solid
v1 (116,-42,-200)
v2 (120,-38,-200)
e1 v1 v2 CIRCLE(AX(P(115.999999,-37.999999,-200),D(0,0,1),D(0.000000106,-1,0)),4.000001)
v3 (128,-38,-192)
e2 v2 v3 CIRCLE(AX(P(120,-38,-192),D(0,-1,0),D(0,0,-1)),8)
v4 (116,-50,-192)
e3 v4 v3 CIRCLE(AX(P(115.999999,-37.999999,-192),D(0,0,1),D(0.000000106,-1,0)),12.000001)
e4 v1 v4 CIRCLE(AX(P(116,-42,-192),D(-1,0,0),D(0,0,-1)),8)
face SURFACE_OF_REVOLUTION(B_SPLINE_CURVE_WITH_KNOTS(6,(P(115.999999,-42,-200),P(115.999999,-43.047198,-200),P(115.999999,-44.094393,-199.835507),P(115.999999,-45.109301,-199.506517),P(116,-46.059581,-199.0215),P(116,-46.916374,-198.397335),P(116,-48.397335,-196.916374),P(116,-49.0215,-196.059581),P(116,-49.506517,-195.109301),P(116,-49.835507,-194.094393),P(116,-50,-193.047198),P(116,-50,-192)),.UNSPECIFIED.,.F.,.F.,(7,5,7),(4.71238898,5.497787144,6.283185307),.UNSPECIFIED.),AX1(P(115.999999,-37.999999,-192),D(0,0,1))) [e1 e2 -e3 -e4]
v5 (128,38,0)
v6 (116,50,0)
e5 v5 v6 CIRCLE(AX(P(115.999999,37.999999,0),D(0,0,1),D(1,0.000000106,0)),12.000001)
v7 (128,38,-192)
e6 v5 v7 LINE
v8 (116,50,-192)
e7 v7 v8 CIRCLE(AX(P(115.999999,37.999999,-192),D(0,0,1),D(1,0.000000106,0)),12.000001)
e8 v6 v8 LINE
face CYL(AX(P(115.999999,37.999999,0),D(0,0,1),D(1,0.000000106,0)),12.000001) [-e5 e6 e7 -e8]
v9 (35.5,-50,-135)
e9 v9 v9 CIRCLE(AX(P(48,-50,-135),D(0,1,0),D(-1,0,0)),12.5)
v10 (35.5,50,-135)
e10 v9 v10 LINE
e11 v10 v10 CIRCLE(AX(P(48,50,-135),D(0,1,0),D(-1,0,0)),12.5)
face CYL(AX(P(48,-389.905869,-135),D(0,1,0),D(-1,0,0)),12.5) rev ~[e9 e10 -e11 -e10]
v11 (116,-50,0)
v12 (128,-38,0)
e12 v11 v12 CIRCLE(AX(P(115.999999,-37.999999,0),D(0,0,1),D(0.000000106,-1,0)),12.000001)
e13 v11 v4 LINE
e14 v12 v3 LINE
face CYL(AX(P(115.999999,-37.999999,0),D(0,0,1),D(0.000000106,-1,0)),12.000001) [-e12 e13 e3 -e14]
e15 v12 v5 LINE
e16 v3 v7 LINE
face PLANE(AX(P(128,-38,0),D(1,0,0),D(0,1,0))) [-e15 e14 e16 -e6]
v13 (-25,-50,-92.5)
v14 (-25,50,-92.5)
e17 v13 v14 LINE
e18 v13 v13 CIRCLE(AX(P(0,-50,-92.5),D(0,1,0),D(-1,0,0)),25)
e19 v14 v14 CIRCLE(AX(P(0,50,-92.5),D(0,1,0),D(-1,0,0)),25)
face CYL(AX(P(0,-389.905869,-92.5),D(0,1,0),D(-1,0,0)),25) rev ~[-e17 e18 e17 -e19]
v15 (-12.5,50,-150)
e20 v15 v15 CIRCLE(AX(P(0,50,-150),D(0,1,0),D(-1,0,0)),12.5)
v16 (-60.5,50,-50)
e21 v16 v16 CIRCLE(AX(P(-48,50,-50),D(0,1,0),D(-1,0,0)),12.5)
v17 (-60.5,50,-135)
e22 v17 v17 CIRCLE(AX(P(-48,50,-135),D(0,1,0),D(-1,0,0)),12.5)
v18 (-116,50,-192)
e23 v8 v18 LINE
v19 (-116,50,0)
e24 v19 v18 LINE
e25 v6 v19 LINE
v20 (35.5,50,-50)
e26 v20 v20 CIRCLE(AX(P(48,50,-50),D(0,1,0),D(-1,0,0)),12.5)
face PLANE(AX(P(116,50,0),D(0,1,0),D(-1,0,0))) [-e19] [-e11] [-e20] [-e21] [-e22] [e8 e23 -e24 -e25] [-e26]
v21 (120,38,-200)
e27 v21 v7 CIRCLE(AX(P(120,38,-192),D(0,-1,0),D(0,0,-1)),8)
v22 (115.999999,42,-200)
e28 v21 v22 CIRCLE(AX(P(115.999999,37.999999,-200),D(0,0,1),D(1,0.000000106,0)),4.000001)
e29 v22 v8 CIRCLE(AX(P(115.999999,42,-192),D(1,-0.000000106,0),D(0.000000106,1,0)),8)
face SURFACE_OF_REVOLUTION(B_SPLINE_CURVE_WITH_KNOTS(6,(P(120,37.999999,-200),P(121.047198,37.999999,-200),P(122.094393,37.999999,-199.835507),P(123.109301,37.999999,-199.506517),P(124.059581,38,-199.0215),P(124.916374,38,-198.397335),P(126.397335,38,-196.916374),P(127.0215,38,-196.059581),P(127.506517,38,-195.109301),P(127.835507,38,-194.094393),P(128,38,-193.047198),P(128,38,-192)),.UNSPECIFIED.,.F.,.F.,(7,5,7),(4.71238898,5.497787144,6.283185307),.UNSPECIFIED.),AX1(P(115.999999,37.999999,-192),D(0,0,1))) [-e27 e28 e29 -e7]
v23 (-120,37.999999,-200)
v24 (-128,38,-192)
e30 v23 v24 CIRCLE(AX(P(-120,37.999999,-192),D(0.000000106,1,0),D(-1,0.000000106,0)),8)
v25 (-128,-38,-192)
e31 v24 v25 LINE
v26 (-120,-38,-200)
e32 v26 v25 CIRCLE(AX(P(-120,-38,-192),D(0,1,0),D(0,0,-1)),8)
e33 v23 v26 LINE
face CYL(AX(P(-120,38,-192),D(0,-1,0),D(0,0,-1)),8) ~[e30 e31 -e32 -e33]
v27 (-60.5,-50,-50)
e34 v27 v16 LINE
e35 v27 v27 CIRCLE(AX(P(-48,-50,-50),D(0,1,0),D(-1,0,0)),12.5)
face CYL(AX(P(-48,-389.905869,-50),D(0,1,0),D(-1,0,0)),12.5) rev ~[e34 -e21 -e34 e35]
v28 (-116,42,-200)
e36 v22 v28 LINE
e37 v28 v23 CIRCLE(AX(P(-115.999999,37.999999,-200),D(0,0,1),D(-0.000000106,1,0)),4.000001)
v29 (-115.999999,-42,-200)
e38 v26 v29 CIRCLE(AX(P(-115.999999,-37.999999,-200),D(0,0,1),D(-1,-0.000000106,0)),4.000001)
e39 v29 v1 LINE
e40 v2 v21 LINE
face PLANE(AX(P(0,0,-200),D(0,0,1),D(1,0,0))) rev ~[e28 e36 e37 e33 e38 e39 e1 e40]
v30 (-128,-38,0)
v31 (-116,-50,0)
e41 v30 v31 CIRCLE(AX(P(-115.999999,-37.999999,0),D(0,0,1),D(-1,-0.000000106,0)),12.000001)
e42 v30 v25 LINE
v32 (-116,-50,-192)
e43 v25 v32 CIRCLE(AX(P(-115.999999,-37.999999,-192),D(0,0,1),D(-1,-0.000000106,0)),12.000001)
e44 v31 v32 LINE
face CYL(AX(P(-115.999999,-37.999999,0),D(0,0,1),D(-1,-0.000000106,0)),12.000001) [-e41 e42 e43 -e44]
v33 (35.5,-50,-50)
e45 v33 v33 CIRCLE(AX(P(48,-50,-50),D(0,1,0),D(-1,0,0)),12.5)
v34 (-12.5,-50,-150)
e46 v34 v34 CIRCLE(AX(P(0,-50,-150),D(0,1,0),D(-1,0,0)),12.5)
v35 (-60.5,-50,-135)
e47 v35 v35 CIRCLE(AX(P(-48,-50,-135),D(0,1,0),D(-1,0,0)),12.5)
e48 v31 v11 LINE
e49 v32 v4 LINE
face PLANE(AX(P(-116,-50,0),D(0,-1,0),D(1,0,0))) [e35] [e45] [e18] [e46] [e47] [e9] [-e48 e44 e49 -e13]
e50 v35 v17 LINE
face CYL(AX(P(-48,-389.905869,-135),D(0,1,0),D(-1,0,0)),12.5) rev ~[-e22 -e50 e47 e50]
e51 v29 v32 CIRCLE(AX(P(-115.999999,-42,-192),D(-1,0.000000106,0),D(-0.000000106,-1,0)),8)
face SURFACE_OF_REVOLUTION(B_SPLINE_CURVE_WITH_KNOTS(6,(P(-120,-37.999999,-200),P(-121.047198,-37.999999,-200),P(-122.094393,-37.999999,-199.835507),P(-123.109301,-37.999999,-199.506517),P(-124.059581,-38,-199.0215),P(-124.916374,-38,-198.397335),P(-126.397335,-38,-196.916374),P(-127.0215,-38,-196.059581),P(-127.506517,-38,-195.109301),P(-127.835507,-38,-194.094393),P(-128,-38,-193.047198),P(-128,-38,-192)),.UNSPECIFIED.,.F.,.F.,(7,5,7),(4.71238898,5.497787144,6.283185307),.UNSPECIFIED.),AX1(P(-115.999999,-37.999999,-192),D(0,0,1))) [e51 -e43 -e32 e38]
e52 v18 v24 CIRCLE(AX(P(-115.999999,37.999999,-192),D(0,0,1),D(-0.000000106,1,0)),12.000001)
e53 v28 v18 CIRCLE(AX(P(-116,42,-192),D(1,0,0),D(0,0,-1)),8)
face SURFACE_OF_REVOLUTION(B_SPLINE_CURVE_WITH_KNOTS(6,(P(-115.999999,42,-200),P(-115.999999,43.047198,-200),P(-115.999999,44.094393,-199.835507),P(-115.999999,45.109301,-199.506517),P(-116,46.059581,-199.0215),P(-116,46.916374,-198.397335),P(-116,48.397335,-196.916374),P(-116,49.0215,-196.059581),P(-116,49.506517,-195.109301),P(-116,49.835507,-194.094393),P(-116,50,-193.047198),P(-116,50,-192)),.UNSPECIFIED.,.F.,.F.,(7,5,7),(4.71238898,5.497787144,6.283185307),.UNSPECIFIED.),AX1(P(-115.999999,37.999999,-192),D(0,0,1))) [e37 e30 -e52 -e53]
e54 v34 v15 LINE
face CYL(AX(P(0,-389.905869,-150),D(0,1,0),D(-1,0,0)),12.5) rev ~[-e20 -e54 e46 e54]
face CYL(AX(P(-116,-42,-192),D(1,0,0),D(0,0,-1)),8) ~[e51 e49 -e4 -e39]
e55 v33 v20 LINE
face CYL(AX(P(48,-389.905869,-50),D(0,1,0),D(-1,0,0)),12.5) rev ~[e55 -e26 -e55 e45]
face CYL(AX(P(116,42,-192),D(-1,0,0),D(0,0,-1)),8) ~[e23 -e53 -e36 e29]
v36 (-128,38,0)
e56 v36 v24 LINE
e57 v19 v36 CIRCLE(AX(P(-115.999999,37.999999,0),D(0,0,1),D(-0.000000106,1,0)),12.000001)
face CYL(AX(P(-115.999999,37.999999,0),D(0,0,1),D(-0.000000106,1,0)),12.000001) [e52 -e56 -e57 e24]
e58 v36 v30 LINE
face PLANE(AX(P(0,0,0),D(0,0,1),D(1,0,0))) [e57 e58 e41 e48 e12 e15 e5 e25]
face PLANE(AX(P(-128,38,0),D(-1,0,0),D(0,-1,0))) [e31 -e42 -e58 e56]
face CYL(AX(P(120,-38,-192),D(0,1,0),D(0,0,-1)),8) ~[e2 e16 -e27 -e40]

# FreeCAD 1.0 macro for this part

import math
import FreeCAD as App
import Part
import Sketcher

V = App.Vector
Q = App.Units.Quantity


def edges_at(feature, points):
    """Names of the edges that pass closest to the given points."""
    edges = feature.Shape.Edges
    near = lambda p: min(range(len(edges)), key=lambda i: edges[i].distToShape(Part.Vertex(*p))[0])
    return sorted({f"Edge{near(p) + 1}" for p in points})

doc = App.newDocument("Part")
body = doc.addObject("PartDesign::Body", "Body")

# Sketch on XY plane
sketch1 = body.newObject("Sketcher::SketchObject", "Sketch")
sketch1.AttachmentSupport = (doc.getObject("XY_Plane"), [""])
sketch1.MapMode = "FlatFace"
sketch1.addGeometry(Part.LineSegment(V(116, 50, 0), V(-116, 50, 0)), False)
sketch1.addGeometry(Part.ArcOfCircle(Part.Circle(V(-116, 38, 0), V(0, 0, 1), 12), math.radians(90), math.radians(180)), False)
sketch1.addGeometry(Part.LineSegment(V(-128, 38, 0), V(-128, -38, 0)), False)
sketch1.addGeometry(Part.ArcOfCircle(Part.Circle(V(-116, -38, 0), V(0, 0, 1), 12), math.radians(-180), math.radians(-90)), False)
sketch1.addGeometry(Part.LineSegment(V(-116, -50, 0), V(116, -50, 0)), False)
sketch1.addGeometry(Part.ArcOfCircle(Part.Circle(V(116, -38, 0), V(0, 0, 1), 12), math.radians(-90), math.radians(0)), False)
sketch1.addGeometry(Part.LineSegment(V(128, -38, 0), V(128, 38, 0)), False)
sketch1.addGeometry(Part.ArcOfCircle(Part.Circle(V(116, 38, 0), V(0, 0, 1), 12), math.radians(0), math.radians(90)), False)
sketch1.addConstraint(Sketcher.Constraint("Tangent", 0, 2, 1, 1))
sketch1.addConstraint(Sketcher.Constraint("Tangent", 1, 2, 2, 1))
sketch1.addConstraint(Sketcher.Constraint("Tangent", 2, 2, 3, 1))
sketch1.addConstraint(Sketcher.Constraint("Tangent", 3, 2, 4, 1))
sketch1.addConstraint(Sketcher.Constraint("Tangent", 4, 2, 5, 1))
sketch1.addConstraint(Sketcher.Constraint("Tangent", 5, 2, 6, 1))
sketch1.addConstraint(Sketcher.Constraint("Tangent", 6, 2, 7, 1))
sketch1.addConstraint(Sketcher.Constraint("Tangent", 7, 2, 0, 1))
sketch1.addConstraint(Sketcher.Constraint("Horizontal", 0))
sketch1.addConstraint(Sketcher.Constraint("Vertical", 2))
sketch1.addConstraint(Sketcher.Constraint("Horizontal", 4))
sketch1.addConstraint(Sketcher.Constraint("Vertical", 6))
sketch1.addConstraint(Sketcher.Constraint("Equal", 1, 3))
sketch1.addConstraint(Sketcher.Constraint("Equal", 3, 5))
sketch1.addConstraint(Sketcher.Constraint("Equal", 5, 7))
sketch1.addConstraint(Sketcher.Constraint("Symmetric", 1, 3, 5, 3, -1, 1))
sketch1.addConstraint(Sketcher.Constraint("Radius", 1, Q("12.000001 mm")))
sketch1.addConstraint(Sketcher.Constraint("DistanceX", 0, 2, 0, 1, Q("232 mm")))
sketch1.addConstraint(Sketcher.Constraint("DistanceY", 2, 2, 2, 1, Q("76 mm")))
pad1 = body.newObject("PartDesign::Pad", "Pad")
pad1.Profile = sketch1
pad1.Length = 200
pad1.Reversed = True

# Sketch on XZ plane
sketch2 = body.newObject("Sketcher::SketchObject", "Sketch001")
sketch2.AttachmentSupport = (doc.getObject("XZ_Plane"), [""])
sketch2.MapMode = "FlatFace"
sketch2.AttachmentOffset = App.Placement(V(0, 0, 50), App.Rotation())
sketch2.addGeometry(Part.Circle(V(-48, -50, 0), V(0, 0, 1), 12), False)
sketch2.addGeometry(Part.Circle(V(48, -50, 0), V(0, 0, 1), 12), False)
sketch2.addGeometry(Part.Circle(V(48, -135, 0), V(0, 0, 1), 12), False)
sketch2.addGeometry(Part.Circle(V(0, -150, 0), V(0, 0, 1), 12), False)
sketch2.addGeometry(Part.Circle(V(-48, -135, 0), V(0, 0, 1), 12), False)
sketch2.addConstraint(Sketcher.Constraint("Equal", 0, 1))
sketch2.addConstraint(Sketcher.Constraint("Equal", 1, 2))
sketch2.addConstraint(Sketcher.Constraint("Equal", 2, 3))
sketch2.addConstraint(Sketcher.Constraint("Equal", 3, 4))
sketch2.addConstraint(Sketcher.Constraint("Symmetric", 0, 3, 1, 3, -2))
sketch2.addConstraint(Sketcher.Constraint("Symmetric", 2, 3, 4, 3, -2))
sketch2.addConstraint(Sketcher.Constraint("PointOnObject", 3, 3, -2))
sketch2.addConstraint(Sketcher.Constraint("Vertical", 1, 3, 2, 3))
sketch2.addConstraint(Sketcher.Constraint("Diameter", 0, Q("25 mm")))
sketch2.addConstraint(Sketcher.Constraint("DistanceX", 0, 3, -1, 1, Q("48 mm")))
sketch2.addConstraint(Sketcher.Constraint("DistanceY", 0, 3, -1, 1, Q("50 mm")))
sketch2.addConstraint(Sketcher.Constraint("DistanceY", 2, 3, -1, 1, Q("135 mm")))
sketch2.addConstraint(Sketcher.Constraint("DistanceY", 3, 3, -1, 1, Q("150 mm")))
doc.recompute()
hole = body.newObject("PartDesign::Hole", "Hole")
hole.Profile = sketch2
hole.ThreadType = "None"
hole.Diameter = 25
hole.DepthType = "ThroughAll"
doc.recompute()

fillet = body.newObject("PartDesign::Fillet", "Fillet")
fillet.Base = (hole, edges_at(hole, [(128, 0, -200)]))
fillet.Radius = 8

# Sketch on XZ plane
sketch3 = body.newObject("Sketcher::SketchObject", "Sketch002")
sketch3.AttachmentSupport = (doc.getObject("XZ_Plane"), [""])
sketch3.MapMode = "FlatFace"
sketch3.AttachmentOffset = App.Placement(V(0, 0, 50), App.Rotation())
sketch3.addGeometry(Part.Circle(V(0, -92, 0), V(0, 0, 1), 25), False)
sketch3.addConstraint(Sketcher.Constraint("PointOnObject", 0, 3, -2))
sketch3.addConstraint(Sketcher.Constraint("Diameter", 0, Q("50 mm")))
sketch3.addConstraint(Sketcher.Constraint("DistanceY", 0, 3, -1, 1, Q("92.5 mm")))
doc.recompute()
hole2 = body.newObject("PartDesign::Hole", "Hole001")
hole2.Profile = sketch3
hole2.ThreadType = "None"
hole2.Diameter = 50
hole2.DepthType = "ThroughAll"

doc.recompute()
